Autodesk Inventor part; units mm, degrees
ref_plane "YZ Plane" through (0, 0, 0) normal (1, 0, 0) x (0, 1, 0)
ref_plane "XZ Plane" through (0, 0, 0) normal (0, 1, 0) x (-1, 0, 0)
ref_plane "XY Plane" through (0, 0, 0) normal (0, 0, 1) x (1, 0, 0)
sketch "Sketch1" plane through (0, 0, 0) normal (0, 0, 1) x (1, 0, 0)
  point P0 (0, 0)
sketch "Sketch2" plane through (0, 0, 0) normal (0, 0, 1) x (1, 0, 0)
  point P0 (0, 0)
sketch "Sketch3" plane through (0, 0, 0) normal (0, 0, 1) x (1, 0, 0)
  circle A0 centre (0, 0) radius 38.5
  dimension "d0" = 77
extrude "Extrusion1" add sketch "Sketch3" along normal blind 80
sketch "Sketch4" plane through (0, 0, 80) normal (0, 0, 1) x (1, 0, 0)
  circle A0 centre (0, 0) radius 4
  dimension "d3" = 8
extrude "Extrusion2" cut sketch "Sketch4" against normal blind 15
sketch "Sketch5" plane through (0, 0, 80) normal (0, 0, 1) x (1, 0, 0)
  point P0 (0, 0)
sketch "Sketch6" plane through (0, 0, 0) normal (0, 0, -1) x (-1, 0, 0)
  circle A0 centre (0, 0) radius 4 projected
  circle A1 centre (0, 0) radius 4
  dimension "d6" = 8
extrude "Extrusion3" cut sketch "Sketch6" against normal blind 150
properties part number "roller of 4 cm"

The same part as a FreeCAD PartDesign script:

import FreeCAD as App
import Part
import Sketcher
from FreeCAD import Vector
Q = App.Units.Quantity

doc = App.newDocument("Part")
body = doc.addObject("PartDesign::Body", "Body")

# Sketch on XY plane
sketch1 = body.newObject("Sketcher::SketchObject", "Sketch")
sketch1.AttachmentSupport = (doc.getObject("XY_Plane"), [""])
sketch1.MapMode = "FlatFace"
sketch1.addGeometry(Part.Circle(Vector(0, 0, 0), Vector(0, 0, 1), 38.5), False)
sketch1.addConstraint([
    Sketcher.Constraint("Coincident", 0, 3, -1, 1),
    Sketcher.Constraint("Diameter", 0, Q("77 mm")),
])
pad1 = body.newObject("PartDesign::Pad", "Pad")
pad1.Profile = sketch1
pad1.Length = 80

# Sketch on XY plane
sketch2 = body.newObject("Sketcher::SketchObject", "Sketch001")
sketch2.AttachmentSupport = (doc.getObject("XY_Plane"), [""])
sketch2.MapMode = "FlatFace"
sketch2.AttachmentOffset = App.Placement(Vector(0, 0, 80), App.Rotation())
sketch2.addGeometry(Part.Circle(Vector(0, 0, 0), Vector(0, 0, 1), 4), False)
sketch2.addConstraint([
    Sketcher.Constraint("Coincident", 0, 3, -1, 1),
    Sketcher.Constraint("Diameter", 0, Q("8 mm")),
])
pocket1 = body.newObject("PartDesign::Pocket", "Pocket")
pocket1.Profile = sketch2
pocket1.Length = 15

# Sketch on XY plane
sketch3 = body.newObject("Sketcher::SketchObject", "Sketch002")
sketch3.AttachmentSupport = (doc.getObject("XY_Plane"), [""])
sketch3.MapMode = "FlatFace"
sketch3.addGeometry(Part.Circle(Vector(0, 0, 0), Vector(0, 0, 1), 4), False)
sketch3.addConstraint([
    Sketcher.Constraint("Coincident", 0, 3, -1, 1),
    Sketcher.Constraint("Diameter", 0, Q("8 mm")),
])
pocket2 = body.newObject("PartDesign::Pocket", "Pocket001")
pocket2.Profile = sketch3
pocket2.Length = 150
pocket2.Reversed = True

doc.recompute()
